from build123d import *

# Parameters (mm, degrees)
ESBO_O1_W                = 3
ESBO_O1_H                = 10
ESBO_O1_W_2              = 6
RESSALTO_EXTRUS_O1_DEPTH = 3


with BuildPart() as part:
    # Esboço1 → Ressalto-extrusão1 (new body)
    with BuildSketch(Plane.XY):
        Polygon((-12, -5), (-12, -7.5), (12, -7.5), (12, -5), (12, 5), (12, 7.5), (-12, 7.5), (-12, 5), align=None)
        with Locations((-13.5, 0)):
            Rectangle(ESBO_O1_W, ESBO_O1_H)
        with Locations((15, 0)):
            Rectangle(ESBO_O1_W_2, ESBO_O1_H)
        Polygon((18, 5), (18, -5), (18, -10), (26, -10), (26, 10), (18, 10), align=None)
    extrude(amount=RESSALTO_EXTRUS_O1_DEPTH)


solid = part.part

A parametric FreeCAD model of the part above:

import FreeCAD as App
import Part
import Sketcher
Q = App.Units.Quantity

doc = App.newDocument("Part")
params = doc.addObject("Spreadsheet::Sheet", "Params")
for row, (alias, value) in enumerate([
    ("sketch1_width", "24 mm"),
    ("sketch1_width2", "6 mm"),
    ("sketch1_width3", "8 mm"),
    ("sketch1_width4", "3 mm"),
    ("sketch1_height", "5 mm"),
    ("pad1_length", "3 mm"),
], start=1):
    params.set(f"A{row}", alias)
    params.set(f"B{row}", "=" + value)
    params.setAlias(f"B{row}", alias)

body = doc.addObject("PartDesign::Body", "Body")

# Sketch on XY plane
sketch1 = body.newObject("Sketcher::SketchObject", "Sketch")
sketch1.AttachmentSupport = (doc.getObject("XY_Plane"), [""])
sketch1.MapMode = "FlatFace"
sketch1.addGeometry(Part.LineSegment(App.Vector(-12, -7.5, 0), App.Vector(12, -7.5, 0)), False)
sketch1.addGeometry(Part.LineSegment(App.Vector(12, -7.5, 0), App.Vector(12, -5, 0)), False)
sketch1.addGeometry(Part.LineSegment(App.Vector(12, -5, 0), App.Vector(18, -5, 0)), False)
sketch1.addGeometry(Part.LineSegment(App.Vector(18, -5, 0), App.Vector(18, -10, 0)), False)
sketch1.addGeometry(Part.LineSegment(App.Vector(18, -10, 0), App.Vector(26, -10, 0)), False)
sketch1.addGeometry(Part.LineSegment(App.Vector(26, -10, 0), App.Vector(26, 10, 0)), False)
sketch1.addGeometry(Part.LineSegment(App.Vector(26, 10, 0), App.Vector(18, 10, 0)), False)
sketch1.addGeometry(Part.LineSegment(App.Vector(18, 10, 0), App.Vector(18, 5, 0)), False)
sketch1.addGeometry(Part.LineSegment(App.Vector(18, 5, 0), App.Vector(12, 5, 0)), False)
sketch1.addGeometry(Part.LineSegment(App.Vector(12, 5, 0), App.Vector(12, 7.5, 0)), False)
sketch1.addGeometry(Part.LineSegment(App.Vector(12, 7.5, 0), App.Vector(-12, 7.5, 0)), False)
sketch1.addGeometry(Part.LineSegment(App.Vector(-12, 7.5, 0), App.Vector(-12, 5, 0)), False)
sketch1.addGeometry(Part.LineSegment(App.Vector(-12, 5, 0), App.Vector(-15, 5, 0)), False)
sketch1.addGeometry(Part.LineSegment(App.Vector(-15, 5, 0), App.Vector(-15, -5, 0)), False)
sketch1.addGeometry(Part.LineSegment(App.Vector(-15, -5, 0), App.Vector(-12, -5, 0)), False)
sketch1.addGeometry(Part.LineSegment(App.Vector(-12, -5, 0), App.Vector(-12, -7.5, 0)), False)
sketch1.addConstraint(Sketcher.Constraint("Coincident", 0, 2, 1, 1))
sketch1.addConstraint(Sketcher.Constraint("Coincident", 1, 2, 2, 1))
sketch1.addConstraint(Sketcher.Constraint("Coincident", 2, 2, 3, 1))
sketch1.addConstraint(Sketcher.Constraint("Coincident", 3, 2, 4, 1))
sketch1.addConstraint(Sketcher.Constraint("Coincident", 4, 2, 5, 1))
sketch1.addConstraint(Sketcher.Constraint("Coincident", 5, 2, 6, 1))
sketch1.addConstraint(Sketcher.Constraint("Coincident", 6, 2, 7, 1))
sketch1.addConstraint(Sketcher.Constraint("Coincident", 7, 2, 8, 1))
sketch1.addConstraint(Sketcher.Constraint("Coincident", 8, 2, 9, 1))
sketch1.addConstraint(Sketcher.Constraint("Coincident", 9, 2, 10, 1))
sketch1.addConstraint(Sketcher.Constraint("Coincident", 10, 2, 11, 1))
sketch1.addConstraint(Sketcher.Constraint("Coincident", 11, 2, 12, 1))
sketch1.addConstraint(Sketcher.Constraint("Coincident", 12, 2, 13, 1))
sketch1.addConstraint(Sketcher.Constraint("Coincident", 13, 2, 14, 1))
sketch1.addConstraint(Sketcher.Constraint("Coincident", 14, 2, 15, 1))
sketch1.addConstraint(Sketcher.Constraint("Coincident", 15, 2, 0, 1))
sketch1.addConstraint(Sketcher.Constraint("Horizontal", 0))
sketch1.addConstraint(Sketcher.Constraint("Vertical", 1))
sketch1.addConstraint(Sketcher.Constraint("Horizontal", 2))
sketch1.addConstraint(Sketcher.Constraint("Vertical", 3))
sketch1.addConstraint(Sketcher.Constraint("Horizontal", 4))
sketch1.addConstraint(Sketcher.Constraint("Vertical", 5))
sketch1.addConstraint(Sketcher.Constraint("Horizontal", 6))
sketch1.addConstraint(Sketcher.Constraint("Vertical", 7))
sketch1.addConstraint(Sketcher.Constraint("Horizontal", 8))
sketch1.addConstraint(Sketcher.Constraint("Vertical", 9))
sketch1.addConstraint(Sketcher.Constraint("Horizontal", 10))
sketch1.addConstraint(Sketcher.Constraint("Vertical", 11))
sketch1.addConstraint(Sketcher.Constraint("Horizontal", 12))
sketch1.addConstraint(Sketcher.Constraint("Vertical", 13))
sketch1.addConstraint(Sketcher.Constraint("Horizontal", 14))
sketch1.addConstraint(Sketcher.Constraint("Vertical", 15))
sketch1.addConstraint(Sketcher.Constraint("Symmetric", 0, 2, 10, 2, -1, 1))
sketch1.addConstraint(Sketcher.Constraint("Symmetric", 8, 2, 14, 2, -1, 1))
sketch1.addConstraint(Sketcher.Constraint("Symmetric", 8, 2, 11, 2, -2))
sketch1.addConstraint(Sketcher.Constraint("Symmetric", 3, 2, 6, 2, -1))
sketch1.addConstraint(Sketcher.Constraint("Horizontal", 2, 2, 13, 2))
sketch1.addConstraint(Sketcher.Constraint("DistanceX", 0, 1, 0, 2, Q("24 mm")))
sketch1.addConstraint(Sketcher.Constraint("DistanceX", 2, 1, 2, 2, Q("6 mm")))
sketch1.addConstraint(Sketcher.Constraint("DistanceX", 4, 1, 4, 2, Q("8 mm")))
sketch1.addConstraint(Sketcher.Constraint("DistanceX", 12, 2, 12, 1, Q("3 mm")))
sketch1.addConstraint(Sketcher.Constraint("DistanceY", 3, 2, 3, 1, Q("5 mm")))
sketch1.addConstraint(Sketcher.Constraint("DistanceY", 5, 1, 5, 2, Q("20 mm")))
sketch1.addConstraint(Sketcher.Constraint("DistanceY", 1, 1, 1, 2, Q("2.5 mm")))
sketch1.setExpression("Constraints[37]", "Params.sketch1_width")
sketch1.setExpression("Constraints[38]", "Params.sketch1_width2")
sketch1.setExpression("Constraints[39]", "Params.sketch1_width3")
sketch1.setExpression("Constraints[40]", "Params.sketch1_width4")
sketch1.setExpression("Constraints[41]", "Params.sketch1_height")
pad1 = body.newObject("PartDesign::Pad", "Pad")
pad1.Profile = sketch1
pad1.setExpression("Length", "Params.pad1_length")

doc.recompute()
